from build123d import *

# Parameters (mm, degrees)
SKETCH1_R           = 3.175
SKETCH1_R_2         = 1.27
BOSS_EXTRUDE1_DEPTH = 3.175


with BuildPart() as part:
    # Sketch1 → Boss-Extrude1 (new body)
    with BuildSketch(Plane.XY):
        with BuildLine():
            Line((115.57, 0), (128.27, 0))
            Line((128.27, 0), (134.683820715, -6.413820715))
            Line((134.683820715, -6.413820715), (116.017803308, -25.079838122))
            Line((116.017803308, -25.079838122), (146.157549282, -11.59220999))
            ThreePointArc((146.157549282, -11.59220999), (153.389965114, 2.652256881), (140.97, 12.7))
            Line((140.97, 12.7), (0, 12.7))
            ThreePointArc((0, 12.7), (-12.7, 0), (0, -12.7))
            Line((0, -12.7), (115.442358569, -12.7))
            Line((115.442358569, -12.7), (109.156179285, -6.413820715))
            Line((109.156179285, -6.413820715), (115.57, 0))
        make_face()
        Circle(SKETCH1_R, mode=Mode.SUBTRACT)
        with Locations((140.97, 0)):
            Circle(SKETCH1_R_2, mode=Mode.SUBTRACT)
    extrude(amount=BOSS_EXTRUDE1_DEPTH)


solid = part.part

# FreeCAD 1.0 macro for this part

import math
import FreeCAD as App
import Part
import Sketcher

V = App.Vector
Q = App.Units.Quantity

doc = App.newDocument("Part")
params = doc.addObject("Spreadsheet::Sheet", "Params")
for row, (alias, value) in enumerate([
    ("sketch1_diameter", "0.1 in"),
    ("sketch1_radius", "0.5 in"),
    ("sketch1_diameter2", "0.25 in"),
    ("sketch1_width", "0.5 in"),
    ("sketch1_length", "1.3 in"),
    ("pad1_length", "0.125 in"),
], start=1):
    params.set(f"A{row}", alias)
    params.set(f"B{row}", "=" + value)
    params.setAlias(f"B{row}", alias)

body = doc.addObject("PartDesign::Body", "Body")

sketch1 = body.newObject("Sketcher::SketchObject", "Sketch")
sketch1.AttachmentSupport = (doc.getObject("XY_Plane"), [""])
sketch1.MapMode = "FlatFace"
sketch1.addGeometry([
    Part.LineSegment(V(115.6, 0, 0), V(128.3, 0, 0)),
    Part.LineSegment(V(128.3, 0, 0), V(134.7, -6.4, 0)),
    Part.LineSegment(V(134.7, -6.4, 0), V(116, -25.1, 0)),
    Part.LineSegment(V(116, -25.1, 0), V(146.2, -11.6, 0)),
    Part.ArcOfCircle(Part.Circle(V(141, 0, 0), V(0, 0, 1), 12.7), math.radians(-66), math.radians(90)),
    Part.LineSegment(V(141, 12.7, 0), V(0, 12.7, 0)),
    Part.ArcOfCircle(Part.Circle(V(0, 0, 0), V(0, 0, 1), 12.7), math.radians(90), math.radians(270)),
    Part.LineSegment(V(0, -12.7, 0), V(115.4, -12.7, 0)),
    Part.LineSegment(V(115.4, -12.7, 0), V(109.2, -6.4, 0)),
    Part.LineSegment(V(109.2, -6.4, 0), V(115.6, 0, 0)),
    Part.Circle(V(0, 0, 0), V(0, 0, 1), 3.2),
    Part.Circle(V(141, 0, 0), V(0, 0, 1), 1.3),
], False)
sketch1.addConstraint([
    Sketcher.Constraint("Coincident", 0, 2, 1, 1),
    Sketcher.Constraint("Coincident", 1, 2, 2, 1),
    Sketcher.Constraint("Coincident", 2, 2, 3, 1),
    Sketcher.Constraint("Tangent", 3, 2, 4, 1),
    Sketcher.Constraint("Tangent", 4, 2, 5, 1),
    Sketcher.Constraint("Tangent", 5, 2, 6, 1),
    Sketcher.Constraint("Tangent", 6, 2, 7, 1),
    Sketcher.Constraint("Coincident", 7, 2, 8, 1),
    Sketcher.Constraint("Coincident", 8, 2, 9, 1),
    Sketcher.Constraint("Coincident", 9, 2, 0, 1),
    Sketcher.Constraint("Horizontal", 0),
    Sketcher.Constraint("Horizontal", 5),
    Sketcher.Constraint("Horizontal", 7),
    Sketcher.Constraint("Coincident", 6, 3, -1, 1),
    Sketcher.Constraint("Coincident", 10, 3, -1, 1),
    Sketcher.Constraint("Coincident", 11, 3, 4, 3),
    Sketcher.Constraint("Equal", 4, 6),
    Sketcher.Constraint("PointOnObject", 0, 2, -1),
    Sketcher.Constraint("Perpendicular", 1, 2),
    Sketcher.Constraint("Perpendicular", 2, 8),
    Sketcher.Constraint("Perpendicular", 8, 9),
    Sketcher.Constraint("Horizontal", 1, 2, 8, 2),
    Sketcher.Constraint("Equal", 1, 9),
    Sketcher.Constraint("Diameter", 11, Q("0.1 in")),
    Sketcher.Constraint("Radius", 4, Q("0.5 in")),
    Sketcher.Constraint("Diameter", 10, Q("0.25 in")),
    Sketcher.Constraint("DistanceX", 0, 1, 0, 2, Q("0.5 in")),
    Sketcher.Constraint("Distance", 3, Q("1.3 in")),
    Sketcher.Constraint("DistanceX", 5, 2, 5, 1, Q("5.55 in")),
    Sketcher.Constraint("DistanceX", 0, 2, 4, 3, Q("0.5 in")),
    Sketcher.Constraint("Distance", 8, Q("0.35 in")),
])
sketch1.setExpression("Constraints[23]", "Params.sketch1_diameter")
sketch1.setExpression("Constraints[24]", "Params.sketch1_radius")
sketch1.setExpression("Constraints[25]", "Params.sketch1_diameter2")
sketch1.setExpression("Constraints[26]", "Params.sketch1_width")
sketch1.setExpression("Constraints[27]", "Params.sketch1_length")
pad1 = body.newObject("PartDesign::Pad", "Pad")
pad1.Profile = sketch1
pad1.setExpression("Length", "Params.pad1_length")

doc.recompute()
